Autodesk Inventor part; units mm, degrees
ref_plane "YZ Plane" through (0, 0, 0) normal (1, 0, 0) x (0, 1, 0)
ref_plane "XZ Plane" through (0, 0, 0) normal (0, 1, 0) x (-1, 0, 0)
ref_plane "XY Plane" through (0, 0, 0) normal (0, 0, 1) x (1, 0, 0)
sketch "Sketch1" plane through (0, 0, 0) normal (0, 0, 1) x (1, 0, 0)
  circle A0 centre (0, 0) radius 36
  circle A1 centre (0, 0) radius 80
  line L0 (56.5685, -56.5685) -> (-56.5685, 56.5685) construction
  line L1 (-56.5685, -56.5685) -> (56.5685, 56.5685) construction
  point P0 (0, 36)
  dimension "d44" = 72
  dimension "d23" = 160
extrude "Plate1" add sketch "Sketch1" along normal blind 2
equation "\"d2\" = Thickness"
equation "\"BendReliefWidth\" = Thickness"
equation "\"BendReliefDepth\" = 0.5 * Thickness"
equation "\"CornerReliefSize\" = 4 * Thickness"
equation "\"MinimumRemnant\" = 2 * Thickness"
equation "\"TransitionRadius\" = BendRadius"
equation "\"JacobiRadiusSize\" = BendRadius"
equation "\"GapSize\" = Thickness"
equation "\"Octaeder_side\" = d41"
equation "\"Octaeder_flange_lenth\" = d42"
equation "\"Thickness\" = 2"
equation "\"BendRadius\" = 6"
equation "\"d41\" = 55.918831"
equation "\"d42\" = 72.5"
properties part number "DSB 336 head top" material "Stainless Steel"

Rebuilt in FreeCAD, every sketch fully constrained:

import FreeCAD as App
import Part
import Sketcher
from FreeCAD import Vector
Q = App.Units.Quantity

doc = App.newDocument("Part")
body = doc.addObject("PartDesign::Body", "Body")

# Sketch on XY plane
sketch1 = body.newObject("Sketcher::SketchObject", "Sketch")
sketch1.AttachmentSupport = (doc.getObject("XY_Plane"), [""])
sketch1.MapMode = "FlatFace"
sketch1.addGeometry(Part.Circle(Vector(0, 0, 0), Vector(0, 0, 1), 80), False)
sketch1.addGeometry(Part.Circle(Vector(0, 0, 0), Vector(0, 0, 1), 36), False)
sketch1.addConstraint(Sketcher.Constraint("Coincident", 0, 3, -1, 1))
sketch1.addConstraint(Sketcher.Constraint("Coincident", 1, 3, -1, 1))
sketch1.addConstraint(Sketcher.Constraint("Diameter", 0, Q("160 mm")))
sketch1.addConstraint(Sketcher.Constraint("Diameter", 1, Q("72 mm")))
pad1 = body.newObject("PartDesign::Pad", "Pad")
pad1.Profile = sketch1
pad1.Length = 2

doc.recompute()
